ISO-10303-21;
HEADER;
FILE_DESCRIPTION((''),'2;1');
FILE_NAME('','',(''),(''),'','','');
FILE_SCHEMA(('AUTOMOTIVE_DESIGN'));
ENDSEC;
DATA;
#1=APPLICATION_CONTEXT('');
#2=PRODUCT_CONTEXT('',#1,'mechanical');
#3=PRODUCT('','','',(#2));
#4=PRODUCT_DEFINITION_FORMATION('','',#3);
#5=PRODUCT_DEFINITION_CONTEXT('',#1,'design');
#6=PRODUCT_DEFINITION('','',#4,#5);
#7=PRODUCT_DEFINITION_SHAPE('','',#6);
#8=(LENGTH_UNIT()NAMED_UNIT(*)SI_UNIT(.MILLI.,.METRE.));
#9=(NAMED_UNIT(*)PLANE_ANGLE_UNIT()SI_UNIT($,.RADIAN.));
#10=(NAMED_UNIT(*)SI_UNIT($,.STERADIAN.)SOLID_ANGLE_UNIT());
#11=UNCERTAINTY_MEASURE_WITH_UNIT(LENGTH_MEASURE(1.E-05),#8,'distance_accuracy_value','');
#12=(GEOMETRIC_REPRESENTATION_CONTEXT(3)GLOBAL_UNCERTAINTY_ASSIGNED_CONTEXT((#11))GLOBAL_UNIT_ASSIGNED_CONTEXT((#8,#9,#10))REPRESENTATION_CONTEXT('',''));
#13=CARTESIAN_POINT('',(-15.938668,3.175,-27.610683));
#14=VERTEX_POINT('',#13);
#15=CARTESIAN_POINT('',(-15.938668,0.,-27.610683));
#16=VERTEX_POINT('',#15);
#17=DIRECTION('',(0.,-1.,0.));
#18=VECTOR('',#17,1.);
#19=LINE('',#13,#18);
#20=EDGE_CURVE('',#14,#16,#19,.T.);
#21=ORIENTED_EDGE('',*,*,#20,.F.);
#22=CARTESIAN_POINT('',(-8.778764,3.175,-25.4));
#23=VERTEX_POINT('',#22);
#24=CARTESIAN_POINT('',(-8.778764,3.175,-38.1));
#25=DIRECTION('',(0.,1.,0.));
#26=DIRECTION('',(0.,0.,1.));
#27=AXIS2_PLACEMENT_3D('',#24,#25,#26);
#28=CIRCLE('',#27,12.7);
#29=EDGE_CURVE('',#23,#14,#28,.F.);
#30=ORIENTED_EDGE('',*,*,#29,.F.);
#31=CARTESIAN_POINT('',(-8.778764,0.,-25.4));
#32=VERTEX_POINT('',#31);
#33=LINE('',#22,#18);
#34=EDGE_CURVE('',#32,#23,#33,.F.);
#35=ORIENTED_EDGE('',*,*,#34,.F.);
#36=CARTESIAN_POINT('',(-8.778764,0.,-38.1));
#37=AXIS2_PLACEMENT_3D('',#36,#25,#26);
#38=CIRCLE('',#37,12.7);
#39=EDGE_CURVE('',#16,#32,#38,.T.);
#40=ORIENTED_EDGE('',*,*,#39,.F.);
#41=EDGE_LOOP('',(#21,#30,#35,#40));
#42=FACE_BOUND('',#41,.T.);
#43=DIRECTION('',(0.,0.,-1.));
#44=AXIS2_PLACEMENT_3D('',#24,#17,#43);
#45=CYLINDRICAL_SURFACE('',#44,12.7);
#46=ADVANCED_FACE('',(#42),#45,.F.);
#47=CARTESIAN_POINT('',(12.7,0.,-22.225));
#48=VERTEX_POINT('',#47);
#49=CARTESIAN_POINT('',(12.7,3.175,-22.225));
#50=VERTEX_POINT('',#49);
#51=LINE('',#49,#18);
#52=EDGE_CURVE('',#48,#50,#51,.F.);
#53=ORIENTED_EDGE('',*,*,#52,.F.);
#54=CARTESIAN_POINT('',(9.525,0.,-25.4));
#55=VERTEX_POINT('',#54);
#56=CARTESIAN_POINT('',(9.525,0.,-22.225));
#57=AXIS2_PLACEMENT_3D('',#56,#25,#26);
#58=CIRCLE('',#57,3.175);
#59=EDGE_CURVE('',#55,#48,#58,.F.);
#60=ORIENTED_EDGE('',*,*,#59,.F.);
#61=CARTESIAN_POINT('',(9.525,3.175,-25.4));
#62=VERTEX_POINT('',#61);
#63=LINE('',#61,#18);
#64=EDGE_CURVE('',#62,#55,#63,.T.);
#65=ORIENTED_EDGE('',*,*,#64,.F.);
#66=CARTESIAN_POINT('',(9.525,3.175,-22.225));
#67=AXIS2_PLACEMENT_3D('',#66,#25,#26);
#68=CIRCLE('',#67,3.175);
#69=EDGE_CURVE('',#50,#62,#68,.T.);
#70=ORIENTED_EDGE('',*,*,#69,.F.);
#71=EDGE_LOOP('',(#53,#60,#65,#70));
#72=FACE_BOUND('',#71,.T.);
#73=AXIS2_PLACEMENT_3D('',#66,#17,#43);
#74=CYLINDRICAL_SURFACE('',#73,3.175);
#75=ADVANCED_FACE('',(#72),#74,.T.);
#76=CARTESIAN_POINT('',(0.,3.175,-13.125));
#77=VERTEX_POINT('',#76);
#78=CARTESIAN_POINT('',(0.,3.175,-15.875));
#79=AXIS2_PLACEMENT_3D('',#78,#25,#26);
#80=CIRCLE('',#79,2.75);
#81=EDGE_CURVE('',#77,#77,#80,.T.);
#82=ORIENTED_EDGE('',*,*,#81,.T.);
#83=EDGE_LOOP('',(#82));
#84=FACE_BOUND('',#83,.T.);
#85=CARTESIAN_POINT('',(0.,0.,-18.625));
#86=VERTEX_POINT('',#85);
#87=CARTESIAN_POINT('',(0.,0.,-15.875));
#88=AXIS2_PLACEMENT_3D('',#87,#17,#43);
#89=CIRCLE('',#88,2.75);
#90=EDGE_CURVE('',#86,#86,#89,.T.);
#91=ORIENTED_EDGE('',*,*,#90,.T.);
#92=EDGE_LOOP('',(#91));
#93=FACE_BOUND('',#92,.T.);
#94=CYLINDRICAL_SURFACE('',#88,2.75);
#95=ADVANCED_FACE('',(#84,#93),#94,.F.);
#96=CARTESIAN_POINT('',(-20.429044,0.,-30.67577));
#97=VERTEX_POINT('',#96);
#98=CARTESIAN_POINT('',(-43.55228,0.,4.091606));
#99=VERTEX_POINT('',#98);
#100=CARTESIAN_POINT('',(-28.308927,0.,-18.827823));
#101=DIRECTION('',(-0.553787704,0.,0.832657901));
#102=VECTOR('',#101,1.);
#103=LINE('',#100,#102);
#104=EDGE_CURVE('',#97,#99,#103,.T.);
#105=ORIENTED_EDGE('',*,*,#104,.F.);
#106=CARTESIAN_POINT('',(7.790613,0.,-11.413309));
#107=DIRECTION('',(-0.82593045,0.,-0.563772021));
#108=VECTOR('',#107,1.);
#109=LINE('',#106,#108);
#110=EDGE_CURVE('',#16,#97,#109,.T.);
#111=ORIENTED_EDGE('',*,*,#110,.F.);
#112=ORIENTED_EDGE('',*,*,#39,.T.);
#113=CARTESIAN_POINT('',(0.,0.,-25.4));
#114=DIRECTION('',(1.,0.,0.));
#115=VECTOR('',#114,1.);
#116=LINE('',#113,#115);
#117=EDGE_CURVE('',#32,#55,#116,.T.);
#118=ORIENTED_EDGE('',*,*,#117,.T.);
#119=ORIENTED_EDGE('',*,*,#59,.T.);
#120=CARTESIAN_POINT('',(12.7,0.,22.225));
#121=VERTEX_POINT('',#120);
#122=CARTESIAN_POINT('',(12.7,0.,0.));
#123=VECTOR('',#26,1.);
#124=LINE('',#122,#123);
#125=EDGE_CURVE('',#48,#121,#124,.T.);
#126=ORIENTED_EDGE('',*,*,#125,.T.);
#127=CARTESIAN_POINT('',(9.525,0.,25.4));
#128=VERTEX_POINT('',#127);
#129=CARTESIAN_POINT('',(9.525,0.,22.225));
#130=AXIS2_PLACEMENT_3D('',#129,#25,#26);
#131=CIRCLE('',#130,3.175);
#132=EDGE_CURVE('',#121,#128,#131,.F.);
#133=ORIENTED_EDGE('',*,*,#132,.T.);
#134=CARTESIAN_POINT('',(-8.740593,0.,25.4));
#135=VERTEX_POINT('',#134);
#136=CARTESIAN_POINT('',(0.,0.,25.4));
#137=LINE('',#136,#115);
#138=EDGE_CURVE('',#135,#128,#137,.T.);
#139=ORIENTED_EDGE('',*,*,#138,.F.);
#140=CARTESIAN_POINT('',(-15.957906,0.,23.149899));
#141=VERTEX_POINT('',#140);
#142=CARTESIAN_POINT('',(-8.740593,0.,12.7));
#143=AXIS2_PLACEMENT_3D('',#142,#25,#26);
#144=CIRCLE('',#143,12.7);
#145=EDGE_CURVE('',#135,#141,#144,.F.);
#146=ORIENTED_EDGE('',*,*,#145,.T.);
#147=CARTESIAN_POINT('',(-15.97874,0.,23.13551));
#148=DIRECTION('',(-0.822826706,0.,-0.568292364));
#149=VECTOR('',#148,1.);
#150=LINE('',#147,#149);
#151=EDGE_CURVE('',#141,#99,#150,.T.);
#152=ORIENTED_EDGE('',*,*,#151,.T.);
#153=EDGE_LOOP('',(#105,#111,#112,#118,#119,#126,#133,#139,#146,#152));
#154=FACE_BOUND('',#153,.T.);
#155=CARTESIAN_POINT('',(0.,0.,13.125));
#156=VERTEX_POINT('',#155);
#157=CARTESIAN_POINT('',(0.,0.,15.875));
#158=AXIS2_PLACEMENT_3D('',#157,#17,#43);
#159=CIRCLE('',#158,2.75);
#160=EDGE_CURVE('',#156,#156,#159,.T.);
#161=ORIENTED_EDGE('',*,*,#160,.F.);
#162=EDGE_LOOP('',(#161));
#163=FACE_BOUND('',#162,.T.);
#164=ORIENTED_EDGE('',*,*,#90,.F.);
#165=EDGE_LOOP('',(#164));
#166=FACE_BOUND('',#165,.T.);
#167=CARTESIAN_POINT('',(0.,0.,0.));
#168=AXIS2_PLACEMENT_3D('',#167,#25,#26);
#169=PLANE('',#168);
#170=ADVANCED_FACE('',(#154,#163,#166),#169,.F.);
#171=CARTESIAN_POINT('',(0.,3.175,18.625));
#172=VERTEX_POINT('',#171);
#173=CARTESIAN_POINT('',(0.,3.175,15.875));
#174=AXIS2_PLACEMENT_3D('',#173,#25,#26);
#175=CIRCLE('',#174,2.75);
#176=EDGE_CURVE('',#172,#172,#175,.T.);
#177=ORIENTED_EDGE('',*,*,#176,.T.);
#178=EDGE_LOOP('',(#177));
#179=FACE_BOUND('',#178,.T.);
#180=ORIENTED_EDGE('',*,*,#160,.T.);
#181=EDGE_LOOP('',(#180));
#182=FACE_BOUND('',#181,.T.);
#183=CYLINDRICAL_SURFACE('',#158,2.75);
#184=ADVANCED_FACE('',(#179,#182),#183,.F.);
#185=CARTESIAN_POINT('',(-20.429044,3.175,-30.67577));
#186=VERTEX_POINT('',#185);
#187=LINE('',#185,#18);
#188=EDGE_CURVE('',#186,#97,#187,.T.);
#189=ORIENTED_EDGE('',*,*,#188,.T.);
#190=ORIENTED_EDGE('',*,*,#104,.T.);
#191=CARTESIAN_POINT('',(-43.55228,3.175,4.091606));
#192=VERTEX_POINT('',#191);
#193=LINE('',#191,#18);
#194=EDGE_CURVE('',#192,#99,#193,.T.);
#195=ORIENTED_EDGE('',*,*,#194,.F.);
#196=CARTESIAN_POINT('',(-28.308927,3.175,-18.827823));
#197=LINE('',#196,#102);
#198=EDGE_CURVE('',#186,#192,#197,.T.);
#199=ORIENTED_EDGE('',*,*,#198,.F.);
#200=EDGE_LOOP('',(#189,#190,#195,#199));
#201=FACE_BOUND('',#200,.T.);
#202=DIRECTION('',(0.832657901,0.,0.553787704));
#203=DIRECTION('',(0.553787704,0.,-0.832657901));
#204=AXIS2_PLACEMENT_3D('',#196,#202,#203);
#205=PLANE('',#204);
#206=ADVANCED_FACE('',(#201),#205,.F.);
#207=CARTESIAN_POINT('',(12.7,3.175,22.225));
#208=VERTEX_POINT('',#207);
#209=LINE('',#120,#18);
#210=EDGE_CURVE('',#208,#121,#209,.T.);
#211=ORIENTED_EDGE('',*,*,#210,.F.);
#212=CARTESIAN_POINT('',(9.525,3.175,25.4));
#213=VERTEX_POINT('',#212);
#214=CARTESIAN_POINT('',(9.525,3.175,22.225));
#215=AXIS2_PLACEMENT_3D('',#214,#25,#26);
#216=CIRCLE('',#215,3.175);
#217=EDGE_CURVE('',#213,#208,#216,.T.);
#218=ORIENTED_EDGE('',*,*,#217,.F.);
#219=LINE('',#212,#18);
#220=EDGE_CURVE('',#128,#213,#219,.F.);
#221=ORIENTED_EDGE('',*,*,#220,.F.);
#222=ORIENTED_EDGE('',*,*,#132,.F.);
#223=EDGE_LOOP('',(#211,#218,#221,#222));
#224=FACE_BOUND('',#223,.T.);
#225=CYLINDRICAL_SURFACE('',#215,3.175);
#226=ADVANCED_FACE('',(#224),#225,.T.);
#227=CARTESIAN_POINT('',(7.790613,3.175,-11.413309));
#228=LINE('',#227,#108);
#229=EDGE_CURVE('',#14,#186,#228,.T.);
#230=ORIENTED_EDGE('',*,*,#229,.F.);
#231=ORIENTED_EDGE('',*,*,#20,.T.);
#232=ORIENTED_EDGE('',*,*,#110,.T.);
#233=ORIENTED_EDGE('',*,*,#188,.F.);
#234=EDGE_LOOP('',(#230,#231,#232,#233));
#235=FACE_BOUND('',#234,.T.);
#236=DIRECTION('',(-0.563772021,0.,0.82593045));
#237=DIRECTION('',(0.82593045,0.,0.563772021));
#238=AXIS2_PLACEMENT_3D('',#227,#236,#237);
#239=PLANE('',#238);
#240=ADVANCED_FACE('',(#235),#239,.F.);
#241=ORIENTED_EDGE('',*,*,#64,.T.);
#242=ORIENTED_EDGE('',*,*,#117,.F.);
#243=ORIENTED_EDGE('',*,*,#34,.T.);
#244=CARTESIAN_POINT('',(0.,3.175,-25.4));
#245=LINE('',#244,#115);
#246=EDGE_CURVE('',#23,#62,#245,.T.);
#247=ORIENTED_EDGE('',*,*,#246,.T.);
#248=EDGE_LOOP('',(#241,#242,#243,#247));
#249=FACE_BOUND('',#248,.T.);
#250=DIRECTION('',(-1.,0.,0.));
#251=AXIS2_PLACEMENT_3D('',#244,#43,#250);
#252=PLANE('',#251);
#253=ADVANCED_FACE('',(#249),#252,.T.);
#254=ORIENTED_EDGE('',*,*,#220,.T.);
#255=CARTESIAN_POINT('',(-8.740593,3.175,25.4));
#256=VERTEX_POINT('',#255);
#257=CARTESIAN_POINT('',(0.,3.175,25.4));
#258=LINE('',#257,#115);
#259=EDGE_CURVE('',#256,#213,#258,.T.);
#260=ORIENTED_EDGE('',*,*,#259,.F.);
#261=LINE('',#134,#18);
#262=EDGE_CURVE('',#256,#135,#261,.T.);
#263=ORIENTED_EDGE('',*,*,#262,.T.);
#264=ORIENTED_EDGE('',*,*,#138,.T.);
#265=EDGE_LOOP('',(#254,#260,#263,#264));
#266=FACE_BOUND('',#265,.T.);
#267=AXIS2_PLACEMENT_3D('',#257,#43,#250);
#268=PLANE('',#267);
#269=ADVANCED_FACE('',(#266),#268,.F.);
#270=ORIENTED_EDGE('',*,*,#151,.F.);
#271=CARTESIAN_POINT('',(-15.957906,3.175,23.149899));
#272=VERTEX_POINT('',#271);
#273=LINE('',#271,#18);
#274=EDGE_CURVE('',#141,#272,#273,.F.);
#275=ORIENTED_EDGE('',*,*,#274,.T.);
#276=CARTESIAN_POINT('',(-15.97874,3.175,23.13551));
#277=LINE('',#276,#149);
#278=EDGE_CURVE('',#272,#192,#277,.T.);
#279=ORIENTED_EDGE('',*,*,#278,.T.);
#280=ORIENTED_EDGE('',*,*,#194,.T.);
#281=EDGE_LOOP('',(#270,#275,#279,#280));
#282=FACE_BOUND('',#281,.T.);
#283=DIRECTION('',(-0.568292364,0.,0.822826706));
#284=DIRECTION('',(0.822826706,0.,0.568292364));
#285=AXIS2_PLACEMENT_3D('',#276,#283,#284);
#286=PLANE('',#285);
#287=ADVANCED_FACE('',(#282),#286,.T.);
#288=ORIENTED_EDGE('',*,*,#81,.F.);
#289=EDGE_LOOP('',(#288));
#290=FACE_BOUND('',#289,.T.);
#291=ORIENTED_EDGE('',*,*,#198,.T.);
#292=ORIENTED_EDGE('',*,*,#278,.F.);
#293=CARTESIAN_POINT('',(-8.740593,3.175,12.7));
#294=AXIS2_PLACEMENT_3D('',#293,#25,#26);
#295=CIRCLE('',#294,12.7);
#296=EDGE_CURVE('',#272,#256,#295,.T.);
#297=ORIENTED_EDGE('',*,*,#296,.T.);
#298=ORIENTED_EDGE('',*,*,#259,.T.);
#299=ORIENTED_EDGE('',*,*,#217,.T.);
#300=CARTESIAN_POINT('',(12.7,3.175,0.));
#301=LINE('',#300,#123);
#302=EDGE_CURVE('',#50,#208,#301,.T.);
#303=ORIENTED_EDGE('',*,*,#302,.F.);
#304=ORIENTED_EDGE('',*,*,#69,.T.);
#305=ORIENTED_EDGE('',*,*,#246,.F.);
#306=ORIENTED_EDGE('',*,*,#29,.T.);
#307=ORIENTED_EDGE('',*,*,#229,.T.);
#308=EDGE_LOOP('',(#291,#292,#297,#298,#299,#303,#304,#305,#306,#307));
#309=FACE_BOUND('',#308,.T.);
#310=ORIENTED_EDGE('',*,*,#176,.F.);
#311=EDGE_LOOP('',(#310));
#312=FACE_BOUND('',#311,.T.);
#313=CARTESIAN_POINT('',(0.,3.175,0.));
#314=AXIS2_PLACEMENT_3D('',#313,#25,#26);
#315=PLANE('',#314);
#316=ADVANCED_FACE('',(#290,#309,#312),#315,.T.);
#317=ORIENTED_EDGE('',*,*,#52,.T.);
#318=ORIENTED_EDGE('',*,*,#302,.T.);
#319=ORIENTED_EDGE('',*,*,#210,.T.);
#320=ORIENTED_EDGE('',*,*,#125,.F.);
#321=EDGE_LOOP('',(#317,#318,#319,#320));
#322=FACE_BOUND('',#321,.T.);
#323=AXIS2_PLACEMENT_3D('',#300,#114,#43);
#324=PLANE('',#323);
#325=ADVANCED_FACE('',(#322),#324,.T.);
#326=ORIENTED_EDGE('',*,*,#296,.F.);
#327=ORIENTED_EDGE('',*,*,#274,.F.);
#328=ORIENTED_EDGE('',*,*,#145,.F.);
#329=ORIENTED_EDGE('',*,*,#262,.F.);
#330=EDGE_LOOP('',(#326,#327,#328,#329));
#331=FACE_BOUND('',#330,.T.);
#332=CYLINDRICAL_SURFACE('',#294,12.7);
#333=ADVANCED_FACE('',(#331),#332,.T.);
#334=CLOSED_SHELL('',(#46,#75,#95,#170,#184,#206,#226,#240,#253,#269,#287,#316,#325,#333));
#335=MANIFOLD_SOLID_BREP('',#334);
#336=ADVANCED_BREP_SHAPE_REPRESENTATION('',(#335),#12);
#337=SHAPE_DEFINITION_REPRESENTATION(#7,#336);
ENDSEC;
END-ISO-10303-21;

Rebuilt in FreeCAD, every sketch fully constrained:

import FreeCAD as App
import Part
import Sketcher
Q = App.Units.Quantity


def edges_at(feature, points):
    """Names of the edges that pass closest to the given points."""
    edges = feature.Shape.Edges
    near = lambda p: min(range(len(edges)), key=lambda i: edges[i].distToShape(Part.Vertex(*p))[0])
    return sorted({f"Edge{near(p) + 1}" for p in points})


def add_polygon(sketch, points):
    """Adds a closed chain of lines whose ends are joined by coincident constraints."""
    first, n = sketch.GeometryCount, len(points)
    for a, b in zip(points, points[1:] + points[:1]):
        sketch.addGeometry(Part.LineSegment(App.Vector(*a, 0), App.Vector(*b, 0)), False)
    for i in range(n):
        sketch.addConstraint(Sketcher.Constraint("Coincident", first + i, 2, first + (i + 1) % n, 1))

doc = App.newDocument("Part")
body = doc.addObject("PartDesign::Body", "Body")

# Sketch on XZ plane
sketch1 = body.newObject("Sketcher::SketchObject", "Sketch")
sketch1.AttachmentSupport = (doc.getObject("XZ_Plane"), [""])
sketch1.MapMode = "FlatFace"
add_polygon(sketch1, [(-13, -25), (-20, -31), (-44, 4), (-13, 25), (13, 25), (13, -25)])  # lines 0-5
sketch1.addConstraint(Sketcher.Constraint("Horizontal", 3))
sketch1.addConstraint(Sketcher.Constraint("Vertical", 4))
sketch1.addConstraint(Sketcher.Constraint("Horizontal", 5))
sketch1.addConstraint(Sketcher.Constraint("Symmetric", 2, 2, 4, 2, -1, 1))
sketch1.addConstraint(Sketcher.Constraint("Vertical", 2, 2, 5, 2))
sketch1.addConstraint(Sketcher.Constraint("DistanceX", 3, 1, 3, 2, Q("1 in")))
sketch1.addConstraint(Sketcher.Constraint("DistanceY", 4, 2, 4, 1, Q("2 in")))
sketch1.addConstraint(Sketcher.Constraint("Distance", 2, Q("1.4761999 in")))
sketch1.addConstraint(Sketcher.Constraint("DistanceY", 0, 2, -1, 1, 30.67577))
sketch1.addConstraint(Sketcher.Constraint("DistanceX", 1, 2, -1, 1, 43.55228))
sketch1.addConstraint(Sketcher.Constraint("Distance", 0, 9.357984))
pad1 = body.newObject("PartDesign::Pad", "Pad")
pad1.Profile = sketch1
pad1.Length = Q("0.125 in")
pad1.Reversed = True

# Sketch on XZ plane
sketch2 = body.newObject("Sketcher::SketchObject", "Sketch001")
sketch2.AttachmentSupport = (doc.getObject("XZ_Plane"), [""])
sketch2.MapMode = "FlatFace"
sketch2.addGeometry(Part.Circle(App.Vector(0, -15.9, 0), App.Vector(0, 0, 1), 2.8), False)
sketch2.addGeometry(Part.Circle(App.Vector(0, 15.9, 0), App.Vector(0, 0, 1), 2.8), False)
sketch2.addConstraint(Sketcher.Constraint("Equal", 0, 1))
sketch2.addConstraint(Sketcher.Constraint("Symmetric", 0, 3, 1, 3, -1, 1))
sketch2.addConstraint(Sketcher.Constraint("PointOnObject", 0, 3, -2))
sketch2.addConstraint(Sketcher.Constraint("Diameter", 0, 5.5))
sketch2.addConstraint(Sketcher.Constraint("DistanceY", 0, 3, 1, 3, Q("1.25 in")))
doc.recompute()
hole = body.newObject("PartDesign::Hole", "Hole")
hole.Profile = sketch2
hole.ThreadType = "None"
hole.Diameter = 5.5
hole.DepthType = "Dimension"
hole.Depth = Q("0.5 in")
hole.DrillPoint = "Angled"
hole.DrillPointAngle = 118
doc.recompute()

fillet = body.newObject("PartDesign::Fillet", "Fillet")
fillet.Base = (hole, edges_at(hole, [(-12.7, 1.587, -25.4), (-12.7, 1.587, 25.4)]))
fillet.Radius = Q("0.5 in")
doc.recompute()

fillet2 = body.newObject("PartDesign::Fillet", "Fillet001")
fillet2.Base = (fillet, edges_at(fillet, [(12.7, 1.587, -25.4), (12.7, 1.587, 25.4)]))
fillet2.Radius = Q("0.125 in")

doc.recompute()
